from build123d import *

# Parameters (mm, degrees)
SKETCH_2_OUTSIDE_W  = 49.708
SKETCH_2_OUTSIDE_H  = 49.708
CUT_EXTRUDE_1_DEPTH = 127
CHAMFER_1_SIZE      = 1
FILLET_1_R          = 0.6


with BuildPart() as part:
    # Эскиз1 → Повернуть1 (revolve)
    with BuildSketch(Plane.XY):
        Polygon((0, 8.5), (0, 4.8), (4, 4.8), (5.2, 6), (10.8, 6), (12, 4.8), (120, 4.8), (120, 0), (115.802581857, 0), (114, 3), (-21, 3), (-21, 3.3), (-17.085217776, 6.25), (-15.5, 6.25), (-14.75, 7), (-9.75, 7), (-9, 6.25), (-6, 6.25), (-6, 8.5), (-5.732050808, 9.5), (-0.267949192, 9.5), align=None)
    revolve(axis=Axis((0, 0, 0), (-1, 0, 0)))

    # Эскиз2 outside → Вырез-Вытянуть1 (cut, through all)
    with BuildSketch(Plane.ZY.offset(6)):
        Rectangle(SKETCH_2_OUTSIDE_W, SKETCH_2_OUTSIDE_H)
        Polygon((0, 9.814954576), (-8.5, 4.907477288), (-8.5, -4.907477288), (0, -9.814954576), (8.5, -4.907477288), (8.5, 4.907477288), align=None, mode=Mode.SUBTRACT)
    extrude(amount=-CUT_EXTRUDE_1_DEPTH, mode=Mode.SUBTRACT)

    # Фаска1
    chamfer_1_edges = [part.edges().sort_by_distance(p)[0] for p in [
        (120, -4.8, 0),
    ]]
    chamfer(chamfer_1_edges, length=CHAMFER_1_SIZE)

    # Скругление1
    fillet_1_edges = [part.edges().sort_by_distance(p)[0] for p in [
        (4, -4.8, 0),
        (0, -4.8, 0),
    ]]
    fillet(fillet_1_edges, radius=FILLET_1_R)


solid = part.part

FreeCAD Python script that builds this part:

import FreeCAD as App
import Part
import Sketcher

V = App.Vector
Q = App.Units.Quantity


def edges_at(feature, points):
    """Names of the edges that pass closest to the given points."""
    edges = feature.Shape.Edges
    near = lambda p: min(range(len(edges)), key=lambda i: edges[i].distToShape(Part.Vertex(*p))[0])
    return sorted({f"Edge{near(p) + 1}" for p in points})

doc = App.newDocument("Part")
body = doc.addObject("PartDesign::Body", "Body")

# Sketch on XY plane
sketch1 = doc.addObject("Sketcher::SketchObject", "Sketch")
body.addObject(sketch1)
sketch1.AttachmentSupport = (doc.XY_Plane, [""])
sketch1.MapMode = "FlatFace"
sketch1.addGeometry(Part.LineSegment(V(0, 4.8, 0), V(0, 8.5, 0)), False)
sketch1.addGeometry(Part.LineSegment(V(0, 8.5, 0), V(-0.27, 9.5, 0)), False)
sketch1.addGeometry(Part.LineSegment(V(-0.27, 9.5, 0), V(-5.73, 9.5, 0)), False)
sketch1.addGeometry(Part.LineSegment(V(-5.73, 9.5, 0), V(-6, 8.5, 0)), False)
sketch1.addGeometry(Part.LineSegment(V(-6, 8.5, 0), V(-6, 6.25, 0)), False)
sketch1.addGeometry(Part.LineSegment(V(-6, 6.25, 0), V(-9, 6.25, 0)), False)
sketch1.addGeometry(Part.LineSegment(V(-9, 6.25, 0), V(-9.75, 7, 0)), False)
sketch1.addGeometry(Part.LineSegment(V(-9.75, 7, 0), V(-14.75, 7, 0)), False)
sketch1.addGeometry(Part.LineSegment(V(-14.75, 7, 0), V(-15.5, 6.25, 0)), False)
sketch1.addGeometry(Part.LineSegment(V(-15.5, 6.25, 0), V(-17.09, 6.25, 0)), False)
sketch1.addGeometry(Part.LineSegment(V(-17.09, 6.25, 0), V(-21, 3.3, 0)), False)
sketch1.addGeometry(Part.LineSegment(V(-21, 3.3, 0), V(-21, 3, 0)), False)
sketch1.addGeometry(Part.LineSegment(V(-21, 3, 0), V(114, 3, 0)), False)
sketch1.addGeometry(Part.LineSegment(V(114, 3, 0), V(115.8, 0, 0)), False)
sketch1.addGeometry(Part.LineSegment(V(115.8, 0, 0), V(120, 0, 0)), False)
sketch1.addGeometry(Part.LineSegment(V(120, 0, 0), V(120, 4.8, 0)), False)
sketch1.addGeometry(Part.LineSegment(V(120, 4.8, 0), V(12, 4.8, 0)), False)
sketch1.addGeometry(Part.LineSegment(V(12, 4.8, 0), V(10.8, 6, 0)), False)
sketch1.addGeometry(Part.LineSegment(V(10.8, 6, 0), V(5.2, 6, 0)), False)
sketch1.addGeometry(Part.LineSegment(V(5.2, 6, 0), V(4, 4.8, 0)), False)
sketch1.addGeometry(Part.LineSegment(V(4, 4.8, 0), V(0, 4.8, 0)), False)
sketch1.addConstraint(Sketcher.Constraint("Coincident", 0, 2, 1, 1))
sketch1.addConstraint(Sketcher.Constraint("Coincident", 1, 2, 2, 1))
sketch1.addConstraint(Sketcher.Constraint("Coincident", 2, 2, 3, 1))
sketch1.addConstraint(Sketcher.Constraint("Coincident", 3, 2, 4, 1))
sketch1.addConstraint(Sketcher.Constraint("Coincident", 4, 2, 5, 1))
sketch1.addConstraint(Sketcher.Constraint("Coincident", 5, 2, 6, 1))
sketch1.addConstraint(Sketcher.Constraint("Coincident", 6, 2, 7, 1))
sketch1.addConstraint(Sketcher.Constraint("Coincident", 7, 2, 8, 1))
sketch1.addConstraint(Sketcher.Constraint("Coincident", 8, 2, 9, 1))
sketch1.addConstraint(Sketcher.Constraint("Coincident", 9, 2, 10, 1))
sketch1.addConstraint(Sketcher.Constraint("Coincident", 10, 2, 11, 1))
sketch1.addConstraint(Sketcher.Constraint("Coincident", 11, 2, 12, 1))
sketch1.addConstraint(Sketcher.Constraint("Coincident", 12, 2, 13, 1))
sketch1.addConstraint(Sketcher.Constraint("Coincident", 13, 2, 14, 1))
sketch1.addConstraint(Sketcher.Constraint("Coincident", 14, 2, 15, 1))
sketch1.addConstraint(Sketcher.Constraint("Coincident", 15, 2, 16, 1))
sketch1.addConstraint(Sketcher.Constraint("Coincident", 16, 2, 17, 1))
sketch1.addConstraint(Sketcher.Constraint("Coincident", 17, 2, 18, 1))
sketch1.addConstraint(Sketcher.Constraint("Coincident", 18, 2, 19, 1))
sketch1.addConstraint(Sketcher.Constraint("Coincident", 19, 2, 20, 1))
sketch1.addConstraint(Sketcher.Constraint("Coincident", 20, 2, 0, 1))
sketch1.addConstraint(Sketcher.Constraint("Vertical", 0))
sketch1.addConstraint(Sketcher.Constraint("Horizontal", 2))
sketch1.addConstraint(Sketcher.Constraint("Vertical", 4))
sketch1.addConstraint(Sketcher.Constraint("Horizontal", 5))
sketch1.addConstraint(Sketcher.Constraint("Horizontal", 7))
sketch1.addConstraint(Sketcher.Constraint("Horizontal", 9))
sketch1.addConstraint(Sketcher.Constraint("Vertical", 11))
sketch1.addConstraint(Sketcher.Constraint("Horizontal", 12))
sketch1.addConstraint(Sketcher.Constraint("Horizontal", 14))
sketch1.addConstraint(Sketcher.Constraint("Vertical", 15))
sketch1.addConstraint(Sketcher.Constraint("Horizontal", 16))
sketch1.addConstraint(Sketcher.Constraint("Horizontal", 18))
sketch1.addConstraint(Sketcher.Constraint("Horizontal", 20))
sketch1.addConstraint(Sketcher.Constraint("PointOnObject", 0, 2, -2))
sketch1.addConstraint(Sketcher.Constraint("PointOnObject", 13, 2, -1))
sketch1.addConstraint(Sketcher.Constraint("Perpendicular", 6, 8))
sketch1.addConstraint(Sketcher.Constraint("Perpendicular", 8, 17))
sketch1.addConstraint(Sketcher.Constraint("Perpendicular", 17, 19))
sketch1.addConstraint(Sketcher.Constraint("Horizontal", 0, 2, 3, 2))
sketch1.addConstraint(Sketcher.Constraint("Horizontal", 5, 2, 8, 2))
sketch1.addConstraint(Sketcher.Constraint("Horizontal", 16, 2, 19, 2))
sketch1.addConstraint(Sketcher.Constraint("Equal", 1, 3))
sketch1.addConstraint(Sketcher.Constraint("Equal", 6, 8))
sketch1.addConstraint(Sketcher.Constraint("DistanceX", 5, 2, 5, 1, Q("3 mm")))
sketch1.addConstraint(Sketcher.Constraint("DistanceX", 7, 2, 7, 1, Q("5 mm")))
sketch1.addConstraint(Sketcher.Constraint("DistanceX", 12, 1, 12, 2, Q("135 mm")))
sketch1.addConstraint(Sketcher.Constraint("DistanceX", 16, 2, 16, 1, Q("108 mm")))
sketch1.addConstraint(Sketcher.Constraint("DistanceX", 20, 2, 20, 1, Q("4 mm")))
sketch1.addConstraint(Sketcher.Constraint("Angle", 1, Q("105 deg")))
sketch1.addConstraint(Sketcher.Constraint("Angle", 10, Q("-143 deg")))
sketch1.addConstraint(Sketcher.Constraint("Angle", 13, Q("-59 deg")))
sketch1.addConstraint(Sketcher.Constraint("DistanceX", 18, 2, 18, 1, Q("5.6 mm")))
sketch1.addConstraint(Sketcher.Constraint("DistanceY", 0, 1, 0, 2, Q("3.7 mm")))
sketch1.addConstraint(Sketcher.Constraint("DistanceY", 11, 2, 11, 1, Q("0.3 mm")))
sketch1.addConstraint(Sketcher.Constraint("DistanceY", 15, 1, 15, 2, Q("4.8 mm")))
sketch1.addConstraint(Sketcher.Constraint("DistanceX", 3, 2, -1, 1, Q("6 mm")))
sketch1.addConstraint(Sketcher.Constraint("DistanceY", -1, 1, 6, 2, Q("7 mm")))
sketch1.addConstraint(Sketcher.Constraint("DistanceX", 10, 2, -1, 1, Q("21 mm")))
sketch1.addConstraint(Sketcher.Constraint("DistanceY", -1, 1, 11, 2, Q("3 mm")))
sketch1.addConstraint(Sketcher.Constraint("DistanceX", -1, 1, 14, 2, Q("120 mm")))
sketch1.addConstraint(Sketcher.Constraint("DistanceY", 0, 2, 1, 2, Q("1 mm")))
sketch1.addConstraint(Sketcher.Constraint("DistanceY", 4, 2, 4, 1, Q("2.25 mm")))
revolution = doc.addObject("PartDesign::Revolution", "Revolution")
body.addObject(revolution)
revolution.Profile = sketch1
revolution.ReferenceAxis = (sketch1, ["H_Axis"])
revolution.Angle = 360

# Sketch on YZ plane
sketch2 = doc.addObject("Sketcher::SketchObject", "Sketch001")
body.addObject(sketch2)
sketch2.AttachmentSupport = (doc.YZ_Plane, [""])
sketch2.MapMode = "FlatFace"
sketch2.AttachmentOffset = App.Placement(V(0, 0, -6), App.Rotation())
sketch2.addGeometry(Part.LineSegment(V(25, -25, 0), V(-25, -25, 0)), False)
sketch2.addGeometry(Part.LineSegment(V(-25, -25, 0), V(-25, 25, 0)), False)
sketch2.addGeometry(Part.LineSegment(V(-25, 25, 0), V(25, 25, 0)), False)
sketch2.addGeometry(Part.LineSegment(V(25, 25, 0), V(25, -25, 0)), False)
sketch2.addGeometry(Part.LineSegment(V(5, -8, 0), V(10, 0, 0)), False)
sketch2.addGeometry(Part.LineSegment(V(10, 0, 0), V(5, 8, 0)), False)
sketch2.addGeometry(Part.LineSegment(V(5, 8, 0), V(-5, 8, 0)), False)
sketch2.addGeometry(Part.LineSegment(V(-5, 8, 0), V(-10, 0, 0)), False)
sketch2.addGeometry(Part.LineSegment(V(-10, 0, 0), V(-5, -8, 0)), False)
sketch2.addGeometry(Part.LineSegment(V(-5, -8, 0), V(5, -8, 0)), False)
sketch2.addConstraint(Sketcher.Constraint("Coincident", 0, 2, 1, 1))
sketch2.addConstraint(Sketcher.Constraint("Coincident", 1, 2, 2, 1))
sketch2.addConstraint(Sketcher.Constraint("Coincident", 2, 2, 3, 1))
sketch2.addConstraint(Sketcher.Constraint("Coincident", 3, 2, 0, 1))
sketch2.addConstraint(Sketcher.Constraint("Coincident", 4, 2, 5, 1))
sketch2.addConstraint(Sketcher.Constraint("Coincident", 5, 2, 6, 1))
sketch2.addConstraint(Sketcher.Constraint("Coincident", 6, 2, 7, 1))
sketch2.addConstraint(Sketcher.Constraint("Coincident", 7, 2, 8, 1))
sketch2.addConstraint(Sketcher.Constraint("Coincident", 8, 2, 9, 1))
sketch2.addConstraint(Sketcher.Constraint("Coincident", 9, 2, 4, 1))
sketch2.addConstraint(Sketcher.Constraint("Horizontal", 0))
sketch2.addConstraint(Sketcher.Constraint("Vertical", 1))
sketch2.addConstraint(Sketcher.Constraint("Horizontal", 2))
sketch2.addConstraint(Sketcher.Constraint("Vertical", 3))
sketch2.addConstraint(Sketcher.Constraint("Horizontal", 6))
sketch2.addConstraint(Sketcher.Constraint("Horizontal", 9))
sketch2.addConstraint(Sketcher.Constraint("Symmetric", 0, 2, 2, 2, -1, 1))
sketch2.addConstraint(Sketcher.Constraint("Symmetric", 4, 2, 7, 2, -1, 1))
sketch2.addConstraint(Sketcher.Constraint("Symmetric", 5, 2, 8, 2, -1, 1))
sketch2.addConstraint(Sketcher.Constraint("PointOnObject", 4, 2, -1))
sketch2.addConstraint(Sketcher.Constraint("Parallel", 4, 7))
sketch2.addConstraint(Sketcher.Constraint("Vertical", 6, 2, 8, 2))
sketch2.addConstraint(Sketcher.Constraint("Equal", 2, 1))
sketch2.addConstraint(Sketcher.Constraint("Angle", 4, Q("60 deg")))
sketch2.addConstraint(Sketcher.Constraint("DistanceY", 8, 2, 6, 2, Q("17 mm")))
sketch2.addConstraint(Sketcher.Constraint("DistanceX", 0, 2, 0, 1, Q("49.708 mm")))
sketch2.addConstraint(Sketcher.Constraint("DistanceX", 6, 2, 6, 1, Q("9.814955 mm")))
pocket1 = doc.addObject("PartDesign::Pocket", "Pocket")
body.addObject(pocket1)
pocket1.Profile = sketch2
pocket1.Type = "ThroughAll"
pocket1.Reversed = True
doc.recompute()

chamfer = doc.addObject("PartDesign::Chamfer", "Chamfer")
body.addObject(chamfer)
chamfer.Base = (pocket1, edges_at(pocket1, [(120, -4.8, 0)]))
chamfer.Size = 1
doc.recompute()

fillet = doc.addObject("PartDesign::Fillet", "Fillet")
body.addObject(fillet)
fillet.Base = (chamfer, edges_at(chamfer, [(4, -4.8, 0), (0, -4.8, 0)]))
fillet.Radius = 0.6

doc.recompute()
